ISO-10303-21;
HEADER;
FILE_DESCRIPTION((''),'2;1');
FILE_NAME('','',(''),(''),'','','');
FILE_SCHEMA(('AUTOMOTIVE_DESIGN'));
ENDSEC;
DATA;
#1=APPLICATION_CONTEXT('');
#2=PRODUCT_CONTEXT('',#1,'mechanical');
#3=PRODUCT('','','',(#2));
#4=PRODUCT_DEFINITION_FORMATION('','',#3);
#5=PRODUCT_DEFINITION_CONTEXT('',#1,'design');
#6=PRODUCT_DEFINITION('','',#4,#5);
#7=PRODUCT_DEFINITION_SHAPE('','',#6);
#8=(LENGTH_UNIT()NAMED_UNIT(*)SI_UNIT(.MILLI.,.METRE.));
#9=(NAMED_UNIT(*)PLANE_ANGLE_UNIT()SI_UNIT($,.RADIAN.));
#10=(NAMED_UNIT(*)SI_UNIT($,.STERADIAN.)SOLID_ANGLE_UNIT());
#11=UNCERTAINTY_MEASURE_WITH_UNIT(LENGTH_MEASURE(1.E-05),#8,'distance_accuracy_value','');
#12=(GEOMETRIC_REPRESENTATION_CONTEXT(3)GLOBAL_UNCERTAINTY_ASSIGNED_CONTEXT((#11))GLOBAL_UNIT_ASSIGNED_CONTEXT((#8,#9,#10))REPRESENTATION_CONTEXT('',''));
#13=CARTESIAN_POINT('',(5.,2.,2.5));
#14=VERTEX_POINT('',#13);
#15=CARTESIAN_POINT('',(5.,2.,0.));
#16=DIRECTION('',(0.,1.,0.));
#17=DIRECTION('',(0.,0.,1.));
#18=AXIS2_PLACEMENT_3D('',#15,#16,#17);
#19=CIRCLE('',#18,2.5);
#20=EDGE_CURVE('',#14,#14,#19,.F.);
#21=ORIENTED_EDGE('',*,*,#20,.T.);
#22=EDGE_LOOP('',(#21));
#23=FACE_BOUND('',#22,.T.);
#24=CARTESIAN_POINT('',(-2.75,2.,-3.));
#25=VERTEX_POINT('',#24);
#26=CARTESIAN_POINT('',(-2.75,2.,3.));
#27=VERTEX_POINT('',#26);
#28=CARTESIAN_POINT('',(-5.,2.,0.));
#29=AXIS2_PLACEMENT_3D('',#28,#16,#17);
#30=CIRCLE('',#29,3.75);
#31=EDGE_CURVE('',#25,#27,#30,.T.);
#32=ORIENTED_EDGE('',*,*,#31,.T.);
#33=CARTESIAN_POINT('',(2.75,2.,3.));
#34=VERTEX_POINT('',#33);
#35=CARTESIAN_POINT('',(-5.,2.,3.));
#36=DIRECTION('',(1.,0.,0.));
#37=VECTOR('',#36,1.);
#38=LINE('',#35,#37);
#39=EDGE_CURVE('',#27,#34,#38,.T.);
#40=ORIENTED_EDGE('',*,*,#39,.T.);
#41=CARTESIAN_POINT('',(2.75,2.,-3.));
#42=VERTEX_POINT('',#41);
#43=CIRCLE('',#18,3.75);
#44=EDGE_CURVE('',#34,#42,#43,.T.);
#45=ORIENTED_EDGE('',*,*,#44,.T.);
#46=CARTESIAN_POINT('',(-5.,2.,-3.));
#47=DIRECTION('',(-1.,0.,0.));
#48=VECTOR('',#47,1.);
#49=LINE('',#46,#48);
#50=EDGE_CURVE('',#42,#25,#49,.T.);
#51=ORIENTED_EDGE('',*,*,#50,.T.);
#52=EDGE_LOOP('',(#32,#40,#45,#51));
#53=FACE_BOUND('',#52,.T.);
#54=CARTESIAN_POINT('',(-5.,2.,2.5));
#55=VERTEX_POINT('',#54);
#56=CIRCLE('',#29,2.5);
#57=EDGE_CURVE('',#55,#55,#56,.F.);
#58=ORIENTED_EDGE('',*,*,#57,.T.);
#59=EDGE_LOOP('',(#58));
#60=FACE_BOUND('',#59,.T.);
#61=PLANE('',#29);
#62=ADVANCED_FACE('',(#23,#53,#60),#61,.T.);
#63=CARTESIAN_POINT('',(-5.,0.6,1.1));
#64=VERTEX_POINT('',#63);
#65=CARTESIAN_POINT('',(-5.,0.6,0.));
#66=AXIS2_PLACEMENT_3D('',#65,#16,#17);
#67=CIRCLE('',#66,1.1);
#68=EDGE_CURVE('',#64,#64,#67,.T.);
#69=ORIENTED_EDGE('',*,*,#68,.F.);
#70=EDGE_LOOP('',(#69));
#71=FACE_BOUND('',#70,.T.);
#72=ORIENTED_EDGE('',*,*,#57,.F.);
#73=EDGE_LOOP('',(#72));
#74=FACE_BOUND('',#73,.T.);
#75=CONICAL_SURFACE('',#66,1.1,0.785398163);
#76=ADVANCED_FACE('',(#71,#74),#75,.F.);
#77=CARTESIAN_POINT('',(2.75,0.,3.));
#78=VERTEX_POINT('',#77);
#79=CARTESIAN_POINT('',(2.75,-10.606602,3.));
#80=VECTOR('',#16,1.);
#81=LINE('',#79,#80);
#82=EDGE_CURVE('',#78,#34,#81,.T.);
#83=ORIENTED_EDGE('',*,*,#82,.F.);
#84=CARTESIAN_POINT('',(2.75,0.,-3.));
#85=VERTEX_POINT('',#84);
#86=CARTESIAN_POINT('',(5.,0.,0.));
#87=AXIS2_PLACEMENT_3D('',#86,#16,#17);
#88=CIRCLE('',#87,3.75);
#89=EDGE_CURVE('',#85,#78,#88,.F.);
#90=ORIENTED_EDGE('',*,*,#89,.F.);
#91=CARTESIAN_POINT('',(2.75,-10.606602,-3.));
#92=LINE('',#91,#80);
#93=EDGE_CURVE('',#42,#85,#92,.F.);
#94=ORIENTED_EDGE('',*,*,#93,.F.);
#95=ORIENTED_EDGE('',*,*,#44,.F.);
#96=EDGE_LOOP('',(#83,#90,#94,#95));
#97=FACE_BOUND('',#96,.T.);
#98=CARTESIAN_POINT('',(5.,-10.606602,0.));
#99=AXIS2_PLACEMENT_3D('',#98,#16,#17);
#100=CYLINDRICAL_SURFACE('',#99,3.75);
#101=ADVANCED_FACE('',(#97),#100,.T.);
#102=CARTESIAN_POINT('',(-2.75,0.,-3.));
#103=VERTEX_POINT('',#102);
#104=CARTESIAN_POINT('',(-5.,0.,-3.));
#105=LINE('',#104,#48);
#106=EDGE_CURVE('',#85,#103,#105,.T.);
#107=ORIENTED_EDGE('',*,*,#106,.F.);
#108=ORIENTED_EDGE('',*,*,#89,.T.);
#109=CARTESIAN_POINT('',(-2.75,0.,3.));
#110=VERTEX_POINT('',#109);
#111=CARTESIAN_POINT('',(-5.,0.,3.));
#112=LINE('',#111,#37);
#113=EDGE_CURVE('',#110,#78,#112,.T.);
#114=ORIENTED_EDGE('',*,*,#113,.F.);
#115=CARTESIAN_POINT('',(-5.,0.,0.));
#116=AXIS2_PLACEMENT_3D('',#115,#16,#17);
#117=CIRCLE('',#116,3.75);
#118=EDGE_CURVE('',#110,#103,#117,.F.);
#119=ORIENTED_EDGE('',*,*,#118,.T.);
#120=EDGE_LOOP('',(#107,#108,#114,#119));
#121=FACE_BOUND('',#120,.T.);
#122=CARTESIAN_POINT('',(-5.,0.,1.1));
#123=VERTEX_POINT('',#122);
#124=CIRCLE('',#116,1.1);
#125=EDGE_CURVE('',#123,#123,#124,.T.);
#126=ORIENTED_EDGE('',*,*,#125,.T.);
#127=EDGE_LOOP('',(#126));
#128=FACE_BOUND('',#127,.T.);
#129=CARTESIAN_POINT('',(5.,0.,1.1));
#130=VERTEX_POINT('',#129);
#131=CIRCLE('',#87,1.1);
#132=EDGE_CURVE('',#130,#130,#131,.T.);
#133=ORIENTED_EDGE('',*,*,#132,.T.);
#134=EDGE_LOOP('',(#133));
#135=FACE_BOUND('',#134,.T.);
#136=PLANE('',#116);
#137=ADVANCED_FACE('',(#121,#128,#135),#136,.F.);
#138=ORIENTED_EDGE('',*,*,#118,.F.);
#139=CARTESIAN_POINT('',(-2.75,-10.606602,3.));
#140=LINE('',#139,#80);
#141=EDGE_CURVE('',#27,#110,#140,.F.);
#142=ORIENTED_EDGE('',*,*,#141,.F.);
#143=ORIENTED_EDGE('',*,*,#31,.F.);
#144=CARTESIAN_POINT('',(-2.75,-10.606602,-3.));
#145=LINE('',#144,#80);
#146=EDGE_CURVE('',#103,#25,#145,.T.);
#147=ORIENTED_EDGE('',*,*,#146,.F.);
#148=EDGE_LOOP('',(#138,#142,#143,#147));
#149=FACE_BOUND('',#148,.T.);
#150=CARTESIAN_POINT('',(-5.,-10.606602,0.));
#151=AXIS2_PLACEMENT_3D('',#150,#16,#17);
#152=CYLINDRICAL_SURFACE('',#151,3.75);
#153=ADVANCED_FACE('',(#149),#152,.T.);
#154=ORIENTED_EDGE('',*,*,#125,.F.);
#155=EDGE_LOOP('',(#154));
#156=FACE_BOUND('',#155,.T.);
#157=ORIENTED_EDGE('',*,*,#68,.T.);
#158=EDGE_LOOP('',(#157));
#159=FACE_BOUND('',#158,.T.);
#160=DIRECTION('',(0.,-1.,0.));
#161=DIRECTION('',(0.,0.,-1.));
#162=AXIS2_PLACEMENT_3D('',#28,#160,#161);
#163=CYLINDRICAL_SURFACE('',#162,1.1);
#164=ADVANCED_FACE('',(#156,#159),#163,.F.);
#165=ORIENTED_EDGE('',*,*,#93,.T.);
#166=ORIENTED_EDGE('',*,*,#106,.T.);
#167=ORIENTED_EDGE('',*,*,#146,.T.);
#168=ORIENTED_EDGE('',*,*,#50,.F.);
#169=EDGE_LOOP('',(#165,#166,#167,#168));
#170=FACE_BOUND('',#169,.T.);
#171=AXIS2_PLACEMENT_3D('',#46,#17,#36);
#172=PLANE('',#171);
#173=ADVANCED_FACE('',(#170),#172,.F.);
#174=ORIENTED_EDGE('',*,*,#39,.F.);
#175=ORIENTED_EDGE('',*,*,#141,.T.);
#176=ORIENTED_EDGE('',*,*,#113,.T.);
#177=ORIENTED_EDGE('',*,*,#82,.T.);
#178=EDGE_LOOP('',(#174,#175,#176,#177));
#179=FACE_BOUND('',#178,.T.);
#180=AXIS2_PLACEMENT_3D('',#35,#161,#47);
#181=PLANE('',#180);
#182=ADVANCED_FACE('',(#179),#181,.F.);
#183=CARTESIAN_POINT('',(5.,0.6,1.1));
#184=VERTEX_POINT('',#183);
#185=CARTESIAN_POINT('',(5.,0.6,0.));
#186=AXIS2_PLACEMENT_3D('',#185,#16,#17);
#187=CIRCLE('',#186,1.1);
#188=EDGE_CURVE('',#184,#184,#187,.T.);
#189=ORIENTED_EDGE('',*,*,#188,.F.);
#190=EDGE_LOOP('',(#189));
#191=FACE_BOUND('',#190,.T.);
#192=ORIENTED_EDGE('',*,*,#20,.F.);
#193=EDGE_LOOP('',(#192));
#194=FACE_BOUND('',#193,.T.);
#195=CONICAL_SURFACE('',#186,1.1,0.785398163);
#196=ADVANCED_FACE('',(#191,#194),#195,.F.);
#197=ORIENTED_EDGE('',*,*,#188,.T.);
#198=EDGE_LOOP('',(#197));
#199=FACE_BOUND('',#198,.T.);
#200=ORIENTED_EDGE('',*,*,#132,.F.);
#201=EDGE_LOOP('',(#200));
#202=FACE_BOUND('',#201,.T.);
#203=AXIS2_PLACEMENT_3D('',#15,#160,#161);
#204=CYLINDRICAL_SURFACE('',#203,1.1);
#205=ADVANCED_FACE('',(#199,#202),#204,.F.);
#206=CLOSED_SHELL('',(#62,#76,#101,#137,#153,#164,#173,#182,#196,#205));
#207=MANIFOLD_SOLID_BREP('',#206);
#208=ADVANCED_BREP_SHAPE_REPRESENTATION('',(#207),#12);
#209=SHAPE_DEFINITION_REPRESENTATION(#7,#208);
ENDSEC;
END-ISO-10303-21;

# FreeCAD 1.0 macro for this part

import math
import FreeCAD as App
import Part
import Sketcher
from FreeCAD import Vector
Q = App.Units.Quantity


def edges_at(feature, points):
    """Names of the edges that pass closest to the given points."""
    edges = feature.Shape.Edges
    near = lambda p: min(range(len(edges)), key=lambda i: edges[i].distToShape(Part.Vertex(*p))[0])
    return sorted({f"Edge{near(p) + 1}" for p in points})

doc = App.newDocument("Part")
body = doc.addObject("PartDesign::Body", "Body")

sketch1 = body.newObject("Sketcher::SketchObject", "Sketch")
sketch1.AttachmentSupport = (doc.getObject("XZ_Plane"), [""])
sketch1.MapMode = "FlatFace"
sketch1.addGeometry(Part.LineSegment(Vector(5, -3, 0), Vector(-5, -3, 0)), False)
sketch1.addGeometry(Part.ArcOfCircle(Part.Circle(Vector(-5, 0, 0), Vector(0, 0, 1), 3), math.radians(90), math.radians(270)), False)
sketch1.addGeometry(Part.LineSegment(Vector(-5, 3, 0), Vector(5, 3, 0)), False)
sketch1.addGeometry(Part.ArcOfCircle(Part.Circle(Vector(5, 0, 0), Vector(0, 0, 1), 3), math.radians(-90), math.radians(90)), False)
sketch1.addGeometry(Part.Circle(Vector(5, 0, 0), Vector(0, 0, 1), 1.1), False)
sketch1.addGeometry(Part.Circle(Vector(-5, 0, 0), Vector(0, 0, 1), 1.1), False)
sketch1.addConstraint(Sketcher.Constraint("Tangent", 0, 2, 1, 2))
sketch1.addConstraint(Sketcher.Constraint("Tangent", 1, 1, 2, 1))
sketch1.addConstraint(Sketcher.Constraint("Tangent", 2, 2, 3, 2))
sketch1.addConstraint(Sketcher.Constraint("Tangent", 3, 1, 0, 1))
sketch1.addConstraint(Sketcher.Constraint("Horizontal", 0))
sketch1.addConstraint(Sketcher.Constraint("Horizontal", 2))
sketch1.addConstraint(Sketcher.Constraint("Coincident", 4, 3, 3, 3))
sketch1.addConstraint(Sketcher.Constraint("Coincident", 5, 3, 1, 3))
sketch1.addConstraint(Sketcher.Constraint("Equal", 4, 5))
sketch1.addConstraint(Sketcher.Constraint("Symmetric", 1, 3, 3, 3, -1, 1))
sketch1.addConstraint(Sketcher.Constraint("Radius", 1, Q("3 mm")))
sketch1.addConstraint(Sketcher.Constraint("Diameter", 4, Q("2.2 mm")))
sketch1.addConstraint(Sketcher.Constraint("DistanceX", 0, 2, 0, 1, Q("10 mm")))
pad1 = body.newObject("PartDesign::Pad", "Pad")
pad1.Profile = sketch1
pad1.Length = 2
pad1.Reversed = True

sketch2 = body.newObject("Sketcher::SketchObject", "Sketch001")
sketch2.AttachmentSupport = (doc.getObject("XZ_Plane"), [""])
sketch2.MapMode = "FlatFace"
sketch2.addGeometry(Part.Circle(Vector(-5, 0, 0), Vector(0, 0, 1), 3.8), False)
sketch2.addGeometry(Part.Circle(Vector(-5, 0, 0), Vector(0, 0, 1), 1.1), False)
sketch2.addGeometry(Part.Circle(Vector(5, 0, 0), Vector(0, 0, 1), 3.8), False)
sketch2.addGeometry(Part.Circle(Vector(5, 0, 0), Vector(0, 0, 1), 1.1), False)
sketch2.addConstraint(Sketcher.Constraint("Coincident", 1, 3, 0, 3))
sketch2.addConstraint(Sketcher.Constraint("Coincident", 3, 3, 2, 3))
sketch2.addConstraint(Sketcher.Constraint("Equal", 0, 2))
sketch2.addConstraint(Sketcher.Constraint("Equal", 1, 3))
sketch2.addConstraint(Sketcher.Constraint("Symmetric", 0, 3, 2, 3, -1, 1))
sketch2.addConstraint(Sketcher.Constraint("PointOnObject", 0, 3, -1))
sketch2.addConstraint(Sketcher.Constraint("Diameter", 0, Q("7.5 mm")))
sketch2.addConstraint(Sketcher.Constraint("Diameter", 1, Q("2.2 mm")))
sketch2.addConstraint(Sketcher.Constraint("DistanceX", 0, 3, -1, 1, Q("5 mm")))
pad2 = body.newObject("PartDesign::Pad", "Pad001")
pad2.Profile = sketch2
pad2.Length = 2
pad2.Reversed = True
doc.recompute()

chamfer = body.newObject("PartDesign::Chamfer", "Chamfer")
chamfer.Base = (pad2, edges_at(pad2, [(-5, 2, -1.1), (5, 2, -1.1)]))
chamfer.Size = 1.4

doc.recompute()
